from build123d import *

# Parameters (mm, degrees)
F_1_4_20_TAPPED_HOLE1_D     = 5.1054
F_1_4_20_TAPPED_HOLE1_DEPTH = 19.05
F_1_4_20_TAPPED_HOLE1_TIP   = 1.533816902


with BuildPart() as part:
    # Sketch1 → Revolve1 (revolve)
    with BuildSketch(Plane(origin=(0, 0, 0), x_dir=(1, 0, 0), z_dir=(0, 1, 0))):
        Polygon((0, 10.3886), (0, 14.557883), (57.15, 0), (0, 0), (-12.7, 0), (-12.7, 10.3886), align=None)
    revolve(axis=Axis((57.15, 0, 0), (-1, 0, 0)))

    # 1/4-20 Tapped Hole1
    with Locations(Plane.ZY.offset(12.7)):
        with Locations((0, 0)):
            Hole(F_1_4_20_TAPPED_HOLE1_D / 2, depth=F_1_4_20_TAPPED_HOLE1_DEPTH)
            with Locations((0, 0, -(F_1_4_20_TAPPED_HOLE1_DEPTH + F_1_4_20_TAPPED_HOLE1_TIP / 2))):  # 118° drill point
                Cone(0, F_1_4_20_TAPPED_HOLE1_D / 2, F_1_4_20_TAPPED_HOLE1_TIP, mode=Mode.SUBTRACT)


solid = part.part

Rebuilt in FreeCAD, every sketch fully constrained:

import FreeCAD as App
import Part
import Sketcher

V = App.Vector
Q = App.Units.Quantity


def add_polygon(sketch, points):
    """Adds a closed chain of lines whose ends are joined by coincident constraints."""
    first, n = sketch.GeometryCount, len(points)
    for a, b in zip(points, points[1:] + points[:1]):
        sketch.addGeometry(Part.LineSegment(App.Vector(*a, 0), App.Vector(*b, 0)), False)
    for i in range(n):
        sketch.addConstraint(Sketcher.Constraint("Coincident", first + i, 2, first + (i + 1) % n, 1))

doc = App.newDocument("Part")
body = doc.addObject("PartDesign::Body", "Body")

# Sketch on XZ plane
sketch1 = doc.addObject("Sketcher::SketchObject", "Sketch")
body.addObject(sketch1)
sketch1.AttachmentSupport = (doc.XZ_Plane, [""])
sketch1.MapMode = "FlatFace"
add_polygon(sketch1, [(0, -14.6), (0, -10.4), (-12.7, -10.4), (-12.7, 0), (57.1, 0)])  # lines 0-4
sketch1.addConstraint(Sketcher.Constraint("Vertical", 0))
sketch1.addConstraint(Sketcher.Constraint("Horizontal", 1))
sketch1.addConstraint(Sketcher.Constraint("Vertical", 2))
sketch1.addConstraint(Sketcher.Constraint("Horizontal", 3))
sketch1.addConstraint(Sketcher.Constraint("PointOnObject", 0, 2, -2))
sketch1.addConstraint(Sketcher.Constraint("PointOnObject", 2, 2, -1))
sketch1.addConstraint(Sketcher.Constraint("DistanceX", 1, 2, 1, 1, Q("0.5 in")))
sketch1.addConstraint(Sketcher.Constraint("DistanceX", 3, 1, 3, 2, Q("2.75 in")))
sketch1.addConstraint(Sketcher.Constraint("DistanceY", 2, 1, 2, 2, Q("0.409 in")))
sketch1.addConstraint(Sketcher.Constraint("DistanceY", 0, 1, 0, 2, 4.169283))
revolution = doc.addObject("PartDesign::Revolution", "Revolution")
body.addObject(revolution)
revolution.Profile = sketch1
revolution.ReferenceAxis = (sketch1, ["H_Axis"])
revolution.Angle = 360

# Sketch on YZ plane
sketch2 = doc.addObject("Sketcher::SketchObject", "Sketch001")
body.addObject(sketch2)
sketch2.AttachmentSupport = (doc.YZ_Plane, [""])
sketch2.MapMode = "FlatFace"
sketch2.AttachmentOffset = App.Placement(V(0, 0, -0.5 * 25.4), App.Rotation())
sketch2.addGeometry(Part.Circle(V(0, 0, 0), V(0, 0, 1), 2.6), False)
sketch2.addConstraint(Sketcher.Constraint("Coincident", 0, 3, -1, 1))
sketch2.addConstraint(Sketcher.Constraint("Diameter", 0, Q("0.201 in")))
doc.recompute()
hole = doc.addObject("PartDesign::Hole", "Hole")
body.addObject(hole)
hole.Profile = sketch2
hole.ThreadType = "None"
hole.Diameter = Q("0.201 in")
hole.DepthType = "Dimension"
hole.Depth = Q("0.75 in")
hole.DrillPoint = "Angled"
hole.DrillPointAngle = 118
hole.Reversed = True

doc.recompute()
